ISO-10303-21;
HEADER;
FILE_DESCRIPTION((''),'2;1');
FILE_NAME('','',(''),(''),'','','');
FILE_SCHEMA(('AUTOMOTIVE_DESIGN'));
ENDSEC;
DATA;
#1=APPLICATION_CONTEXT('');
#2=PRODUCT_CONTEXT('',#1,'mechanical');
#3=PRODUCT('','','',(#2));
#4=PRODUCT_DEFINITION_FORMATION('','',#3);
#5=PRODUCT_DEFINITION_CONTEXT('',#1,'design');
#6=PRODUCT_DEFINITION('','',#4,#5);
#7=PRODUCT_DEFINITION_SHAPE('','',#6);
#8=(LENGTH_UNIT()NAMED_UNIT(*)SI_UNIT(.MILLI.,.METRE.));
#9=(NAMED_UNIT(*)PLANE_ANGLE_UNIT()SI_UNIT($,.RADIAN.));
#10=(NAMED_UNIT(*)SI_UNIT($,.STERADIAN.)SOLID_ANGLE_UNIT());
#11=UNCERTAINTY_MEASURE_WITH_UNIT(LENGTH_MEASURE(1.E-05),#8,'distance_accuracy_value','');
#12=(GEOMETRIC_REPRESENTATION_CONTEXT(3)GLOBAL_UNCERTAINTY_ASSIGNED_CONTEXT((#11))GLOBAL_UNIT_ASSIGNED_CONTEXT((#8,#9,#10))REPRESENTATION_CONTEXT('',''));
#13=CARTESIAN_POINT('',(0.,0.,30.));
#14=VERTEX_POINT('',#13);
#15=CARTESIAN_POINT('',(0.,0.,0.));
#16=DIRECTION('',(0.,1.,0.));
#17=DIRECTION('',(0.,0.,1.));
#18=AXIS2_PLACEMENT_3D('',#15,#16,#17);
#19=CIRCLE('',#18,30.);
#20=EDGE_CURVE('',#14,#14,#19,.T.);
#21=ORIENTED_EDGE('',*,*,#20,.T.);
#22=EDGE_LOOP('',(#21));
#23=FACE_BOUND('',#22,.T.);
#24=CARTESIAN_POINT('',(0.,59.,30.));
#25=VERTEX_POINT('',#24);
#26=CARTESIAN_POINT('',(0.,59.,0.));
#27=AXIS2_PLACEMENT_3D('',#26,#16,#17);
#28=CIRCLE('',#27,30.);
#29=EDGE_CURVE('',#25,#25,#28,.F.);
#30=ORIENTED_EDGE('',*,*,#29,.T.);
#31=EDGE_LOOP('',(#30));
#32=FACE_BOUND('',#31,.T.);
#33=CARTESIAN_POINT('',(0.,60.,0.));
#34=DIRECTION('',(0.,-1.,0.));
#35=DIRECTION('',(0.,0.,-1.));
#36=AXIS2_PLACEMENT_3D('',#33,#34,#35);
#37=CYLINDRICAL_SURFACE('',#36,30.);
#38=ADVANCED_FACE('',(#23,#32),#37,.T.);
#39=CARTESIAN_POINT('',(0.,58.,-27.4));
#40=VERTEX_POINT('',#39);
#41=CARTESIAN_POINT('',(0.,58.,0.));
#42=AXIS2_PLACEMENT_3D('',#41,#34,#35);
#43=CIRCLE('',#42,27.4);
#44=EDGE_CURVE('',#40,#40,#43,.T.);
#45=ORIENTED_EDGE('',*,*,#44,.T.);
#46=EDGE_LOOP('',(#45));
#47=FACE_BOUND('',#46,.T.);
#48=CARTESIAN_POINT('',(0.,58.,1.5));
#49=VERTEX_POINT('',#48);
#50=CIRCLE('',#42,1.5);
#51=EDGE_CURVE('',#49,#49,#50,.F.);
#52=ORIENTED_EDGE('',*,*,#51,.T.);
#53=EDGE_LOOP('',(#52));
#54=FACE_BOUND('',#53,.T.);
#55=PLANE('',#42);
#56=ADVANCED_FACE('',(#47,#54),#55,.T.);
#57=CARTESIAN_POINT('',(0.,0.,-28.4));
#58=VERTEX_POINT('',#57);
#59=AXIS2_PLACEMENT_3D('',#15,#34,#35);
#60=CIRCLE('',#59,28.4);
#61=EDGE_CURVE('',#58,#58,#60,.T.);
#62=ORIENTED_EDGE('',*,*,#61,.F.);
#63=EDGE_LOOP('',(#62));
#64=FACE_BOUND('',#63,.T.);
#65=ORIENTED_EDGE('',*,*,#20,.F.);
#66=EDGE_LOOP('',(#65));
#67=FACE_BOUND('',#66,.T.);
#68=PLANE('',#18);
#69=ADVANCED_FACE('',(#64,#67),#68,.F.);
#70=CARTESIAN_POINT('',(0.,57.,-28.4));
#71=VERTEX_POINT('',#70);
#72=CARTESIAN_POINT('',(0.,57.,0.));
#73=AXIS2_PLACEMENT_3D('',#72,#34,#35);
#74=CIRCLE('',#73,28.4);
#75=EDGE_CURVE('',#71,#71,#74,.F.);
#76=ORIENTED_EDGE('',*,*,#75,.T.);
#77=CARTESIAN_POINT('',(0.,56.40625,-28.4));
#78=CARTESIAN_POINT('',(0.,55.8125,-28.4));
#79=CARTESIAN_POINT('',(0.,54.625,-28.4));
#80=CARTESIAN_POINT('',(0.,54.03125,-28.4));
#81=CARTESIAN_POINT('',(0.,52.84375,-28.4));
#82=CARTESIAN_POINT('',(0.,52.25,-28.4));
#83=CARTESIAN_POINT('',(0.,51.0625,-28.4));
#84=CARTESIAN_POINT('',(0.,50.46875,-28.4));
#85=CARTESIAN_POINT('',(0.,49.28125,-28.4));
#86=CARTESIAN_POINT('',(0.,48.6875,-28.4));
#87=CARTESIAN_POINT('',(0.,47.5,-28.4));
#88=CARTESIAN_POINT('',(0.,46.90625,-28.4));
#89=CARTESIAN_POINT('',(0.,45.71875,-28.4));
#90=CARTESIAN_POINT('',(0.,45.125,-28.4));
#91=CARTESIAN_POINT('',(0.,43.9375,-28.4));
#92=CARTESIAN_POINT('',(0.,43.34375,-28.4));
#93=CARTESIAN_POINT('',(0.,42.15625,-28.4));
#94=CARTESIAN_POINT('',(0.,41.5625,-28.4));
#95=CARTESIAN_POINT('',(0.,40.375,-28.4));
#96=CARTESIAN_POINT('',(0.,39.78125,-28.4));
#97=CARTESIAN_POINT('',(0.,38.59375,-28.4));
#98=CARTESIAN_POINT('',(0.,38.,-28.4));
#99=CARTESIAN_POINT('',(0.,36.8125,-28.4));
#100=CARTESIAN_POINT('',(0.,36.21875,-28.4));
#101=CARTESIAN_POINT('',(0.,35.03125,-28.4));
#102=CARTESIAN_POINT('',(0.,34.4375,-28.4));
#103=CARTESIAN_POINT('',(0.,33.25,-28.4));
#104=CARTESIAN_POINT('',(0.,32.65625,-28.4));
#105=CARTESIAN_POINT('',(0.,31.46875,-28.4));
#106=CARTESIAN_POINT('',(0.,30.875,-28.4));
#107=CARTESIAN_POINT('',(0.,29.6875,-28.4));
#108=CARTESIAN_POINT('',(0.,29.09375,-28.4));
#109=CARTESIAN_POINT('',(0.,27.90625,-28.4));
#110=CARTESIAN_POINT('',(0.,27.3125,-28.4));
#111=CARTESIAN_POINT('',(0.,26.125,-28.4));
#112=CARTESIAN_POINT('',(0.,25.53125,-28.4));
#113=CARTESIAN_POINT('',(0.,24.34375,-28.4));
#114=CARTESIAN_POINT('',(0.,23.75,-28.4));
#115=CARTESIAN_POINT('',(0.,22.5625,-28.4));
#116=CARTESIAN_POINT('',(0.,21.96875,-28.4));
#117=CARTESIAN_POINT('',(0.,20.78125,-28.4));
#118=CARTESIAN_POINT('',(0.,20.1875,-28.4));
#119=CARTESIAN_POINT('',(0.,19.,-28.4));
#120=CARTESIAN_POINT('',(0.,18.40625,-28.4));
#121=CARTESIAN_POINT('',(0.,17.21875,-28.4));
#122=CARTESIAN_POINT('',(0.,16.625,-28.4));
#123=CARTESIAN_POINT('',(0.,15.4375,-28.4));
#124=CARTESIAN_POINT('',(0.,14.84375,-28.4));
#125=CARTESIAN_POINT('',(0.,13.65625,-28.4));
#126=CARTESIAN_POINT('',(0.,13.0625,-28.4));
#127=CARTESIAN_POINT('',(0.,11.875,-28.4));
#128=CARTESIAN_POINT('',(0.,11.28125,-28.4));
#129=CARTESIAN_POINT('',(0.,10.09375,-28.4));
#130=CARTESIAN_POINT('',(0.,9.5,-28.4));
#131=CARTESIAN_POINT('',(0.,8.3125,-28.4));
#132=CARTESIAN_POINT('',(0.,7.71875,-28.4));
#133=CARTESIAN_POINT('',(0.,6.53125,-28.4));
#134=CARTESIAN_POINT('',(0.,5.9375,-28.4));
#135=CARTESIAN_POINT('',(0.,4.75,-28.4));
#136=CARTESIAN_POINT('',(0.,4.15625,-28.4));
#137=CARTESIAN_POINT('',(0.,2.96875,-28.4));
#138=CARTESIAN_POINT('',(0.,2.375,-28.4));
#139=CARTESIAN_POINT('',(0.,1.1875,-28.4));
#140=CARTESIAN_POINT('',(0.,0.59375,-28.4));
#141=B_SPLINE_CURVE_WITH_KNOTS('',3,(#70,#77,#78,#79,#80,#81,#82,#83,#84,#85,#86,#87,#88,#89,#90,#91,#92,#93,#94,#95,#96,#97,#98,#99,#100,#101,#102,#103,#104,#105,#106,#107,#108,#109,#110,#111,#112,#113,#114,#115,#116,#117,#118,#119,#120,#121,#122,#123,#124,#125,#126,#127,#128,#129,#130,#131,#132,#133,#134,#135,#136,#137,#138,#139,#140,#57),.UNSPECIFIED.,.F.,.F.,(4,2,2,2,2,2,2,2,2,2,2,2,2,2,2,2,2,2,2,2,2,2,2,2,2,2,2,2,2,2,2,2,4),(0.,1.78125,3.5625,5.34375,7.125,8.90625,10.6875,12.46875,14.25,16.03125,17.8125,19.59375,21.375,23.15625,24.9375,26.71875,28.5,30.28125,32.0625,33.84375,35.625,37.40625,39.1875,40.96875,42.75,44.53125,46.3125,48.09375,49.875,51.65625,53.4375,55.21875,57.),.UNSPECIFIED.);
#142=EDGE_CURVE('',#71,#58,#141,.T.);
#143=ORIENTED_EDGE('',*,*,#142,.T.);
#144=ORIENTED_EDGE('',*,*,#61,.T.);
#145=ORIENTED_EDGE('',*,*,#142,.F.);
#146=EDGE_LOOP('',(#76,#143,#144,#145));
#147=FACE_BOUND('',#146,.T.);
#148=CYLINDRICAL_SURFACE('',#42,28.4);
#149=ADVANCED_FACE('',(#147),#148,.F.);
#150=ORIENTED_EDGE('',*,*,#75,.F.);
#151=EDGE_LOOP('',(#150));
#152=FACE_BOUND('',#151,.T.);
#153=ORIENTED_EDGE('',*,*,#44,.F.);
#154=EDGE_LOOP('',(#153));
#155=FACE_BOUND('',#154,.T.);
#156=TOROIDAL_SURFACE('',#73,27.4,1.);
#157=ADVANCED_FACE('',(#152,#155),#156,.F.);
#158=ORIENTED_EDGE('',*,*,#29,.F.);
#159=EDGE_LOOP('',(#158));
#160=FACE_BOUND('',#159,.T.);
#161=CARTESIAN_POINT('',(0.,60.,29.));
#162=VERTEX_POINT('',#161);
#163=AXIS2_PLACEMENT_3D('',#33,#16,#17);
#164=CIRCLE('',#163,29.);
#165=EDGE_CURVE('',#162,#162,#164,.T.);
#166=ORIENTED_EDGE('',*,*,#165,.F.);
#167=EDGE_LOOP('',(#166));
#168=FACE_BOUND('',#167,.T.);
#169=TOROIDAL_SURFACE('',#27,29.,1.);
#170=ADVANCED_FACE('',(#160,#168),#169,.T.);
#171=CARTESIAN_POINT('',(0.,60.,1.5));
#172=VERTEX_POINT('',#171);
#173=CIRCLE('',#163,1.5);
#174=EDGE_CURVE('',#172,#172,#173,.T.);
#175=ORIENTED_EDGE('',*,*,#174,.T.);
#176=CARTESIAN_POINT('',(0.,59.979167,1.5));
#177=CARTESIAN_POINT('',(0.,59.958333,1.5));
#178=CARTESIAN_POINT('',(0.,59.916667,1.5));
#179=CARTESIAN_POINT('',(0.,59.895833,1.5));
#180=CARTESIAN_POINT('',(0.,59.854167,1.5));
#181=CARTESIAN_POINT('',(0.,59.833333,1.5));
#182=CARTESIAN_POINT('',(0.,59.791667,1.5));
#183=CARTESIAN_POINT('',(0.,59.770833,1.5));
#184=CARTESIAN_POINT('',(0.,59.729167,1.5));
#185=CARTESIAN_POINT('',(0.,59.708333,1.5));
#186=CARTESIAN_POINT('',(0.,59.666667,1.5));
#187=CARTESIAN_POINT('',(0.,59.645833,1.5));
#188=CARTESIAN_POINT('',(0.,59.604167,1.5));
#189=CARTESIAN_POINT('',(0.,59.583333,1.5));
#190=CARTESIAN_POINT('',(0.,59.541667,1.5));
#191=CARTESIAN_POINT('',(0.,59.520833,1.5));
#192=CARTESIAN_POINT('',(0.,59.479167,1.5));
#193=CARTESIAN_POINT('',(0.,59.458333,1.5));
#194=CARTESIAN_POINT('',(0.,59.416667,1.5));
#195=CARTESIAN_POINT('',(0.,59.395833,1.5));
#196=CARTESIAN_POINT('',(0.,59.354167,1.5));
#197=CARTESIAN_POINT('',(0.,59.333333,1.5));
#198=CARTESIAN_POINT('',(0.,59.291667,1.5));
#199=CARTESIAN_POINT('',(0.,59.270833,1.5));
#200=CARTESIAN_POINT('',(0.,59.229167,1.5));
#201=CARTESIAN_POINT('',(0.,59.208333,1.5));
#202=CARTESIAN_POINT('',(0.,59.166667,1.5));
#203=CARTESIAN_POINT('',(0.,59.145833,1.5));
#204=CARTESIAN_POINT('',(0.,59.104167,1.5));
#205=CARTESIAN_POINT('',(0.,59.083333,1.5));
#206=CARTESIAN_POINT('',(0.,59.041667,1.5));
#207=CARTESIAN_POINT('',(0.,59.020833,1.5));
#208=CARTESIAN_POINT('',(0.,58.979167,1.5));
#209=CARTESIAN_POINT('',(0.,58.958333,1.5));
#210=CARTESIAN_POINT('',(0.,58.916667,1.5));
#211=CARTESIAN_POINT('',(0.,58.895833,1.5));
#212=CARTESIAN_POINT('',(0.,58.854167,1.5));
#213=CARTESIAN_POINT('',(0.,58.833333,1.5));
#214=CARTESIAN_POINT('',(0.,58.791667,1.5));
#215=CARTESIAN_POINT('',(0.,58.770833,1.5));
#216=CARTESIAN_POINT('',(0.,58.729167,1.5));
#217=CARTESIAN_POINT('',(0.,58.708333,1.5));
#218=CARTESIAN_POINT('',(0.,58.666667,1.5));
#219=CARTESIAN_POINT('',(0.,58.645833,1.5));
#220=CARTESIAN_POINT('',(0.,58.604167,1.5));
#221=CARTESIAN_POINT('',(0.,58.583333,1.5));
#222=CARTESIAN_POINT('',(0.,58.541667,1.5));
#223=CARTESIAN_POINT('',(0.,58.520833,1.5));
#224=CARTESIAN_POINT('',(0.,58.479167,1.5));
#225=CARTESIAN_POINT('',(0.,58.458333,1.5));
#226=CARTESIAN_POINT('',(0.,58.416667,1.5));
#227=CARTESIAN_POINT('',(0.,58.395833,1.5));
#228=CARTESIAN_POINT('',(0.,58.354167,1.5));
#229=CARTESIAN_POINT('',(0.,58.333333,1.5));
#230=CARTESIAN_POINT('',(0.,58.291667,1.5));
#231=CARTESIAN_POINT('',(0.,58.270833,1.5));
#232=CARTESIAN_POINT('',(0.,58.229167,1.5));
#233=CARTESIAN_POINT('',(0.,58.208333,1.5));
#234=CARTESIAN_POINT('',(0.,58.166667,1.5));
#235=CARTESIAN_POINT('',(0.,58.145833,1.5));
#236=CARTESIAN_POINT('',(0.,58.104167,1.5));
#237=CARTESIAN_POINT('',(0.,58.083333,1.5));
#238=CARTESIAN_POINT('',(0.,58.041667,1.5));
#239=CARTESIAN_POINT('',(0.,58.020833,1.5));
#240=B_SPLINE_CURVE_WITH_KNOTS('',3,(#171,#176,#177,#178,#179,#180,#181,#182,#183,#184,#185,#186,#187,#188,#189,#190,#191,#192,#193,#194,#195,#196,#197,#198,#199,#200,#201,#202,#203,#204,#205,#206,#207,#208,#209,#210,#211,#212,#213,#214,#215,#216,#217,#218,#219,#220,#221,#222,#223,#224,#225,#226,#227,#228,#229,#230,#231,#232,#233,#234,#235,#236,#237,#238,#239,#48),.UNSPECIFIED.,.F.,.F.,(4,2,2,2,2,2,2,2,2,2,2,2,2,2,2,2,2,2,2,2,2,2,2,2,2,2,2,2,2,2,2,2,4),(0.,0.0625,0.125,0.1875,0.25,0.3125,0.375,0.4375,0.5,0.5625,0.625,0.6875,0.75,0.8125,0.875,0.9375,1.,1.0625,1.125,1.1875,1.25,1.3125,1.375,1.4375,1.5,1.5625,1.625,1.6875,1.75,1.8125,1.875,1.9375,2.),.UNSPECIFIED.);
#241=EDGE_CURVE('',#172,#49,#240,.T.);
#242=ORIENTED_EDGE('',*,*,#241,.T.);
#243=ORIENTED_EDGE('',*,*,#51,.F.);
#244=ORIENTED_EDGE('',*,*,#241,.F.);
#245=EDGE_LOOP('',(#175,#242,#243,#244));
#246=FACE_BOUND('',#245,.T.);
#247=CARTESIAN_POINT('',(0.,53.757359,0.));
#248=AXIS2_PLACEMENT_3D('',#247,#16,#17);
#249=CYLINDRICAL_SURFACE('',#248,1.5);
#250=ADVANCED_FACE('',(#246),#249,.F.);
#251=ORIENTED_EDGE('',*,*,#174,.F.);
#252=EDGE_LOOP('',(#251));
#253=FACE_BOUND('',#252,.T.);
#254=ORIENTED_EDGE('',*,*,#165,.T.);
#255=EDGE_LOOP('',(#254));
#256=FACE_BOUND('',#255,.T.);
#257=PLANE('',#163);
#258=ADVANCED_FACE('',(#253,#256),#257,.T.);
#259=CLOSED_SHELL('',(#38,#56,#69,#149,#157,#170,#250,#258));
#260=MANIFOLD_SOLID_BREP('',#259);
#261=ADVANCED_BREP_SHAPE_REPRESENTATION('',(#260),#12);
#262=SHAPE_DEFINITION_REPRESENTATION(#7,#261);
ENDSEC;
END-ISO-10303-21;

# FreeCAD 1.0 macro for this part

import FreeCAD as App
import Part
import Sketcher

V = App.Vector
Q = App.Units.Quantity


def edges_at(feature, points):
    """Names of the edges that pass closest to the given points."""
    edges = feature.Shape.Edges
    near = lambda p: min(range(len(edges)), key=lambda i: edges[i].distToShape(Part.Vertex(*p))[0])
    return sorted({f"Edge{near(p) + 1}" for p in points})

doc = App.newDocument("Part")
body = doc.addObject("PartDesign::Body", "Body")

# Sketch on XZ plane
sketch1 = body.newObject("Sketcher::SketchObject", "Sketch")
sketch1.AttachmentSupport = (doc.getObject("XZ_Plane"), [""])
sketch1.MapMode = "FlatFace"
sketch1.addGeometry(Part.Circle(V(0, 0, 0), V(0, 0, 1), 30), False)
sketch1.addConstraint(Sketcher.Constraint("Coincident", 0, 3, -1, 1))
sketch1.addConstraint(Sketcher.Constraint("Diameter", 0, Q("60 mm")))
pad1 = body.newObject("PartDesign::Pad", "Pad")
pad1.Profile = sketch1
pad1.Length = 60
pad1.Reversed = True

# Sketch on XZ plane
sketch2 = body.newObject("Sketcher::SketchObject", "Sketch001")
sketch2.AttachmentSupport = (doc.getObject("XZ_Plane"), [""])
sketch2.MapMode = "FlatFace"
sketch2.addGeometry(Part.Circle(V(0, 0, 0), V(0, 0, 1), 28), False)
sketch2.addConstraint(Sketcher.Constraint("Coincident", 0, 3, -1, 1))
sketch2.addConstraint(Sketcher.Constraint("Diameter", 0, Q("56.8 mm")))
pocket1 = body.newObject("PartDesign::Pocket", "Pocket")
pocket1.Profile = sketch2
pocket1.Length = 58

# Sketch on XZ plane
sketch3 = body.newObject("Sketcher::SketchObject", "Sketch002")
sketch3.AttachmentSupport = (doc.getObject("XZ_Plane"), [""])
sketch3.MapMode = "FlatFace"
sketch3.AttachmentOffset = App.Placement(V(0, 0, -60), App.Rotation())
sketch3.addGeometry(Part.Circle(V(0, 0, 0), V(0, 0, 1), 1.5), False)
sketch3.addConstraint(Sketcher.Constraint("Coincident", 0, 3, -1, 1))
sketch3.addConstraint(Sketcher.Constraint("Diameter", 0, Q("3 mm")))
pocket2 = body.newObject("PartDesign::Pocket", "Pocket001")
pocket2.Profile = sketch3
pocket2.Length = 2
pocket2.Reversed = True
doc.recompute()

fillet = body.newObject("PartDesign::Fillet", "Fillet")
fillet.Base = (pocket2, edges_at(pocket2, [(0, 58, 28.4)]))
fillet.Radius = 1
doc.recompute()

fillet2 = body.newObject("PartDesign::Fillet", "Fillet001")
fillet2.Base = (fillet, edges_at(fillet, [(0, 60, -30)]))
fillet2.Radius = 1

doc.recompute()
